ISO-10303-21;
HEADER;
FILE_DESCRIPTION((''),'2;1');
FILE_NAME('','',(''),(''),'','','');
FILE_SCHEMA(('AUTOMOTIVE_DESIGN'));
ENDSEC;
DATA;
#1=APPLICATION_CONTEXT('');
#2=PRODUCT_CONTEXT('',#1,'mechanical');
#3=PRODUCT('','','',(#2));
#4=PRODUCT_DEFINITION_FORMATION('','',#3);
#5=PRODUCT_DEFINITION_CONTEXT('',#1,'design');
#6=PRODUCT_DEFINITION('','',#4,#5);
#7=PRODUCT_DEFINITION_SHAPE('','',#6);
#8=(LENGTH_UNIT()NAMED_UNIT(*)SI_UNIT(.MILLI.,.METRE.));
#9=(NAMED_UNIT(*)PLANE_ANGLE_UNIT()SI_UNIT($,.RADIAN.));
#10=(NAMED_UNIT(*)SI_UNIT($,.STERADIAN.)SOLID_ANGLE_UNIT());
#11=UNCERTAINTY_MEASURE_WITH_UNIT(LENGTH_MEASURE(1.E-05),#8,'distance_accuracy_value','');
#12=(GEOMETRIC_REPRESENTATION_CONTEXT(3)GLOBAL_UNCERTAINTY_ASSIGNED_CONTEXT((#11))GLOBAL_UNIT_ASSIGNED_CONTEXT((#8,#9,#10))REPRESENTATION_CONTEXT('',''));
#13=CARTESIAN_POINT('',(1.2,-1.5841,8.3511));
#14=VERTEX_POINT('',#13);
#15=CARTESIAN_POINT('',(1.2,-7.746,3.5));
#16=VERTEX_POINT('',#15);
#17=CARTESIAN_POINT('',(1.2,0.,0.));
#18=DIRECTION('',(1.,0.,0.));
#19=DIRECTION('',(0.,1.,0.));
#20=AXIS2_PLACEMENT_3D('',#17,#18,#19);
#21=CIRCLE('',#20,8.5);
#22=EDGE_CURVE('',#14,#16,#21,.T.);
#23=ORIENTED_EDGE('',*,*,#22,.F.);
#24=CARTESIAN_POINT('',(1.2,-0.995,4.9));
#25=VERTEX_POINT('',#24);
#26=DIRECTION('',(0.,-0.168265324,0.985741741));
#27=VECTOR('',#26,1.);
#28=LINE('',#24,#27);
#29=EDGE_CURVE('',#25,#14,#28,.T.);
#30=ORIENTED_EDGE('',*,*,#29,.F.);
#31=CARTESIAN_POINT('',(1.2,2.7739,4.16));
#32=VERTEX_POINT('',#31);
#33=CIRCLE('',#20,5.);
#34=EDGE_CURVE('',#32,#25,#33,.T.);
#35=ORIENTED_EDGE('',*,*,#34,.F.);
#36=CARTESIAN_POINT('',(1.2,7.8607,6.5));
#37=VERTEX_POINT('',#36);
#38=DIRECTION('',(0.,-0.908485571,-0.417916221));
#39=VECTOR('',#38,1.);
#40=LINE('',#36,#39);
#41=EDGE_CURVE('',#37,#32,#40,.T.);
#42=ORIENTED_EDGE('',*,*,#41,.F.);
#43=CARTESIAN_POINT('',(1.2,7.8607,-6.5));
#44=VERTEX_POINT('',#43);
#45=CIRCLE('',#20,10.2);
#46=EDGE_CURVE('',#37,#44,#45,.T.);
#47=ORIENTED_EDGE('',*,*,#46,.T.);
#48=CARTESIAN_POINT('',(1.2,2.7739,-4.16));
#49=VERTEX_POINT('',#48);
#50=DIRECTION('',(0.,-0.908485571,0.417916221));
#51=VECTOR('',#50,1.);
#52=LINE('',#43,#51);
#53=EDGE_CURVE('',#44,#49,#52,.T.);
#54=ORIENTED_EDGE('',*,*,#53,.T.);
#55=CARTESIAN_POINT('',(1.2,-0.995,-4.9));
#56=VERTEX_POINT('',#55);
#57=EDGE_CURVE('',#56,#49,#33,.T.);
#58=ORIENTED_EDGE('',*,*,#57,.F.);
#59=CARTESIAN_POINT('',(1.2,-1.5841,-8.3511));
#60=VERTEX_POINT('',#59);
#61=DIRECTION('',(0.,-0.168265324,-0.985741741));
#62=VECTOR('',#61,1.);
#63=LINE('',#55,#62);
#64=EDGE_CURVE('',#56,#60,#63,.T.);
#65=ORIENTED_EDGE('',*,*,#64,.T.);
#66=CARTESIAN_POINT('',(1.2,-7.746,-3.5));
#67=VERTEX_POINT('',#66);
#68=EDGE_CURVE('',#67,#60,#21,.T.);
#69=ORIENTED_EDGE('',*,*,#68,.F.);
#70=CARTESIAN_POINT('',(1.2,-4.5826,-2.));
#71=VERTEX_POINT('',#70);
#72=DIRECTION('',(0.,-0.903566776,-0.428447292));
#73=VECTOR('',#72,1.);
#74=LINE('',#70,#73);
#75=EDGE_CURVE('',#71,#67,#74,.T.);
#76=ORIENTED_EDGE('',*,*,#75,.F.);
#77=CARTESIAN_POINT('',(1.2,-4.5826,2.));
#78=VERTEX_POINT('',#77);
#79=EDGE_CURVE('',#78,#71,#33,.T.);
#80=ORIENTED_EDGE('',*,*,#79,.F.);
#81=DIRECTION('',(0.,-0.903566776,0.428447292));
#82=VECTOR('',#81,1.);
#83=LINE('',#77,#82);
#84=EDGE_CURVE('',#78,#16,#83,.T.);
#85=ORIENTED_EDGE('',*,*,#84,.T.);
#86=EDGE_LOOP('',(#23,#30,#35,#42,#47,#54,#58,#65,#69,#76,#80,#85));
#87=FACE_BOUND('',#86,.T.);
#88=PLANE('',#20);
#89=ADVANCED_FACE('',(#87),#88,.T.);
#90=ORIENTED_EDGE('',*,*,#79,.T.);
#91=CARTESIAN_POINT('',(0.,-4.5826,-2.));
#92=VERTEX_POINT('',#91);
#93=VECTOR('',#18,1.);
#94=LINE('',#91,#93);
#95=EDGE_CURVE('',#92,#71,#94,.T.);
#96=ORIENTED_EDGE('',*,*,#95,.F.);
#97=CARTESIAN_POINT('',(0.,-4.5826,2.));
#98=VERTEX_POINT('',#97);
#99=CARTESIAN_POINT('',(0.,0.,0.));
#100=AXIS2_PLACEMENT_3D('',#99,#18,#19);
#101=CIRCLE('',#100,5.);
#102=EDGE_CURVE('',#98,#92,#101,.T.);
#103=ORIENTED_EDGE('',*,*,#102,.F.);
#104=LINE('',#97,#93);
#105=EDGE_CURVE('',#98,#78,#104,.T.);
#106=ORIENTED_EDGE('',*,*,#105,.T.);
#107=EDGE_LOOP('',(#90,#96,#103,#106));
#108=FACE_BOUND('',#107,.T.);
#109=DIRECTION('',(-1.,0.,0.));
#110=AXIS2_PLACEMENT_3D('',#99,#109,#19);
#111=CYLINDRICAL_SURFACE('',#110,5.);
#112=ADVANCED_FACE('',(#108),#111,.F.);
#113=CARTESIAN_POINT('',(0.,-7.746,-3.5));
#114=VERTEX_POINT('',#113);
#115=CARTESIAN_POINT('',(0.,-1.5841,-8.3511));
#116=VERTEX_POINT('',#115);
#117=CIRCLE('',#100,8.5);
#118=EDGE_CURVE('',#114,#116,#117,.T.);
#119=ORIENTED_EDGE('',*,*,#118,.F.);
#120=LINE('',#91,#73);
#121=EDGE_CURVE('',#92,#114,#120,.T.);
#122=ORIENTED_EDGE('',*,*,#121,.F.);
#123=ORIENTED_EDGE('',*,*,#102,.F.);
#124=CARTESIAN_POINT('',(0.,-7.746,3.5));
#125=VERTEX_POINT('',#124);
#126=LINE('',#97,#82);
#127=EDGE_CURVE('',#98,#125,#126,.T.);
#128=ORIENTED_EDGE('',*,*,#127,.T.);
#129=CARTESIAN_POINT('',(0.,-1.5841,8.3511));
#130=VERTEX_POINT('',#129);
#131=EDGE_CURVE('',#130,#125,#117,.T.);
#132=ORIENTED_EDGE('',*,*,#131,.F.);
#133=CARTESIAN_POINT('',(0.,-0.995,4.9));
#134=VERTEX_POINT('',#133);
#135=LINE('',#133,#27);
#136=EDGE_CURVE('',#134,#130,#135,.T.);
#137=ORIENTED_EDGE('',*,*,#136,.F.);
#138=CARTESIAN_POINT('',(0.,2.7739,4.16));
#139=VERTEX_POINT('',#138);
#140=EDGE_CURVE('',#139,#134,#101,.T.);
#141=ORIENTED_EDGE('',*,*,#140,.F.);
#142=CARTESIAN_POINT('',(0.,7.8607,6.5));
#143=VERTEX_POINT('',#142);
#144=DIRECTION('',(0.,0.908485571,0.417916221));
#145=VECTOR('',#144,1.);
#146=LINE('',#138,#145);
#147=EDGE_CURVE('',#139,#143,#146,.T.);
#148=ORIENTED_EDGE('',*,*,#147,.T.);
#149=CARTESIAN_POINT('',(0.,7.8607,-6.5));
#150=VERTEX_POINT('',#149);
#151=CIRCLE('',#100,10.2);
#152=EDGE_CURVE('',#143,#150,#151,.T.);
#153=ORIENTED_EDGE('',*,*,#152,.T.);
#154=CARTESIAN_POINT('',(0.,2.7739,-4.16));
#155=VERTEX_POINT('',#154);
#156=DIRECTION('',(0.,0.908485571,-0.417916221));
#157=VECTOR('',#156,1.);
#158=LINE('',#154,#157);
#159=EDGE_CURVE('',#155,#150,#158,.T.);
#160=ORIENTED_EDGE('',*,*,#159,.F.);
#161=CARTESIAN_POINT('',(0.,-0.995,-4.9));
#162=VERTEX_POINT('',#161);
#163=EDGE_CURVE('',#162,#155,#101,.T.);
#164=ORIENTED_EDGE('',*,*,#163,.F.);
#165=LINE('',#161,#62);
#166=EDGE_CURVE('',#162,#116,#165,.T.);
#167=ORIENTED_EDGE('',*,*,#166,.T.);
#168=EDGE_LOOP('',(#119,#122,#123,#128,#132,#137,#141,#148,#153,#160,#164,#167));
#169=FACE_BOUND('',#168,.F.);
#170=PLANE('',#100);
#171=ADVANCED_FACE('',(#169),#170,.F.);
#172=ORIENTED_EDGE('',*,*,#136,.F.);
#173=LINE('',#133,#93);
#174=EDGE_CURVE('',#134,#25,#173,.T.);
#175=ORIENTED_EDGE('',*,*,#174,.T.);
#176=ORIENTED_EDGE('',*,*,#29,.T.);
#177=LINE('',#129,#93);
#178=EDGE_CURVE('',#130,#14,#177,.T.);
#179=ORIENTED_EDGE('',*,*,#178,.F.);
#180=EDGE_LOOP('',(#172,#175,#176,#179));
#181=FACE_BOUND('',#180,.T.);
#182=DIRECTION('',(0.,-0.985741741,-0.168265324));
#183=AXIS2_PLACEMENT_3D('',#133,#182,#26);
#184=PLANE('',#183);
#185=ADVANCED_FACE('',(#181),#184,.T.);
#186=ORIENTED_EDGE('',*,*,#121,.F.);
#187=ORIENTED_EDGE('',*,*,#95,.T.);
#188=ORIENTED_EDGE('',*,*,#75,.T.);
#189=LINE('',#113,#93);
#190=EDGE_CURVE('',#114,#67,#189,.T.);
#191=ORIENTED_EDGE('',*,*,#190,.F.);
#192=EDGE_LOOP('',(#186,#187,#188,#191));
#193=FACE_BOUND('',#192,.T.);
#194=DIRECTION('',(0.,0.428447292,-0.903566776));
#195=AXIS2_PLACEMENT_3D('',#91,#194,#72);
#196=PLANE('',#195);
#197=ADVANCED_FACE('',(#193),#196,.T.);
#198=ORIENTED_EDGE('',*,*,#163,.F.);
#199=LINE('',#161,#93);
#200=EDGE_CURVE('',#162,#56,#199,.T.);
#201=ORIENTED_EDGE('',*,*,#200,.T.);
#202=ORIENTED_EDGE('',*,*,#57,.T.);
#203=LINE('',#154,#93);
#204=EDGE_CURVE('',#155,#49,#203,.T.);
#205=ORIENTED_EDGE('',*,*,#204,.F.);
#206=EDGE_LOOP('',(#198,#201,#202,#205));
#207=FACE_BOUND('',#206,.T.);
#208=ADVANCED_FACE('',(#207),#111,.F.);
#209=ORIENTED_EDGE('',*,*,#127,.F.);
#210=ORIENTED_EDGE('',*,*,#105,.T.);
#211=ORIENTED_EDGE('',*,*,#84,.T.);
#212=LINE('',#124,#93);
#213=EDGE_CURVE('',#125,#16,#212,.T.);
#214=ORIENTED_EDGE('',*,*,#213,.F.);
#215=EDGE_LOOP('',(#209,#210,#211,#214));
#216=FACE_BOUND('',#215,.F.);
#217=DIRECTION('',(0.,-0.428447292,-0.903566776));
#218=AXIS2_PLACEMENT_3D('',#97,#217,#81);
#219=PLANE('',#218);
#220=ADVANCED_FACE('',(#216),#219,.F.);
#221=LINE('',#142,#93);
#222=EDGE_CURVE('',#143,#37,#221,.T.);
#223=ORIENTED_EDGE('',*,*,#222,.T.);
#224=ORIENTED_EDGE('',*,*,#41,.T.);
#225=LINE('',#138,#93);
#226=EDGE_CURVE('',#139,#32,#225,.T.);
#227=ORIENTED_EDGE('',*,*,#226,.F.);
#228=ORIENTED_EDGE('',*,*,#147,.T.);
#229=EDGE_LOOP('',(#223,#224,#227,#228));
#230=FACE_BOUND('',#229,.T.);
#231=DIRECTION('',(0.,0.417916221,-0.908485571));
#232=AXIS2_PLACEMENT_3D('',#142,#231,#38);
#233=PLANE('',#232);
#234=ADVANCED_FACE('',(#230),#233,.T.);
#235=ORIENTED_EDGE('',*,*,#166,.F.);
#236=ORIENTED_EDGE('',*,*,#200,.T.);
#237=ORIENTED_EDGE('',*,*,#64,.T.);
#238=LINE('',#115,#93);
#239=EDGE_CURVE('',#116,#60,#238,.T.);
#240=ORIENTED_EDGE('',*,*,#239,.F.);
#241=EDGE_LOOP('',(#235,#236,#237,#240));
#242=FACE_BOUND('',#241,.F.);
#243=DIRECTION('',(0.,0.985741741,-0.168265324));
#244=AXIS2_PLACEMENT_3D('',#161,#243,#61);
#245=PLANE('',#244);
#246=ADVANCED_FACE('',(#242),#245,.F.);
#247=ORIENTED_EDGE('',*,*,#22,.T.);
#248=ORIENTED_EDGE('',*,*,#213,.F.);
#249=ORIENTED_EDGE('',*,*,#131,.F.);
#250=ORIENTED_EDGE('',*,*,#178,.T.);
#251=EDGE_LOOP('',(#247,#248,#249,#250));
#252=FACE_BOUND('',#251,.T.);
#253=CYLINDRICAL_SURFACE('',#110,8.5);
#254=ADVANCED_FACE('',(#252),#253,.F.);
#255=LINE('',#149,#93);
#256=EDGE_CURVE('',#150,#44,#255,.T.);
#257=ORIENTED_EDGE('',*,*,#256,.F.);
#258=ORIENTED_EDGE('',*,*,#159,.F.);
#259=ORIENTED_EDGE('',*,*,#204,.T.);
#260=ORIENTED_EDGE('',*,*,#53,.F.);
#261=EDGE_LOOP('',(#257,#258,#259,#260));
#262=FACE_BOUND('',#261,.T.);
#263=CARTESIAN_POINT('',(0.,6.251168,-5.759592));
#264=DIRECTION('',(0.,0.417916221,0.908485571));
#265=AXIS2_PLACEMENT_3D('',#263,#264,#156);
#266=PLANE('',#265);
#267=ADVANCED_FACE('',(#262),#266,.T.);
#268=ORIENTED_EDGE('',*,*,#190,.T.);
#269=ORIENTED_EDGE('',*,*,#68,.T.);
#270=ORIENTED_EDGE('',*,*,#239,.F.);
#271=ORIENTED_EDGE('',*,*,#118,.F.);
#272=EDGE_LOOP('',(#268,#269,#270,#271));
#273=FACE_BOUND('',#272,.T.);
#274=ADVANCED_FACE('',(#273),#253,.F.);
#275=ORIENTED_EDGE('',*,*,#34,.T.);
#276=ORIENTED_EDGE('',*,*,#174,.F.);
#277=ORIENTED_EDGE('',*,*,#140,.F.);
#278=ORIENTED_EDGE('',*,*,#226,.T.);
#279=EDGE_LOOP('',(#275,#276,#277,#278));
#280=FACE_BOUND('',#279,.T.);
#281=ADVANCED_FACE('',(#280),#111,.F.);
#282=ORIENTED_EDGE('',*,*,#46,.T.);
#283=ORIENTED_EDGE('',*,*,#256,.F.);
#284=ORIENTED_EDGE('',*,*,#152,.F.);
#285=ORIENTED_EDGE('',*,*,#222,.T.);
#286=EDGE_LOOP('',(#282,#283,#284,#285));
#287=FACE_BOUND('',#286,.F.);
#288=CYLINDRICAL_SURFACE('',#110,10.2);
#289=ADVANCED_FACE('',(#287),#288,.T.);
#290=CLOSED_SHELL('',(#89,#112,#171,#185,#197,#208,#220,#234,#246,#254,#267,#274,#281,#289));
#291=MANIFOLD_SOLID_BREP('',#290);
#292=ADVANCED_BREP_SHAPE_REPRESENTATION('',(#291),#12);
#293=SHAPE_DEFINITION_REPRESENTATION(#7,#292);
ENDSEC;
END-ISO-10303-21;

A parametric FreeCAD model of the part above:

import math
import FreeCAD as App
import Part
import Sketcher
from FreeCAD import Vector

doc = App.newDocument("Part")
body = doc.addObject("PartDesign::Body", "Body")

# Sketch on YZ plane
sketch1 = body.newObject("Sketcher::SketchObject", "Sketch")
sketch1.AttachmentSupport = (doc.getObject("YZ_Plane"), [""])
sketch1.MapMode = "FlatFace"
sketch1.addGeometry(Part.ArcOfCircle(Part.Circle(Vector(0, 0, 0), Vector(0, 0, 1), 10.2), math.radians(39.58729), math.radians(320.41271)), False)
sketch1.addGeometry(Part.LineSegment(Vector(7.8607, -6.5, 0), Vector(2.7739, -4.16, 0)), False)
sketch1.addGeometry(Part.ArcOfCircle(Part.Circle(Vector(0, 0, 0), Vector(0, 0, 1), 5), math.radians(-101.478482), math.radians(-56.30453)), False)
sketch1.addGeometry(Part.LineSegment(Vector(-0.995, -4.9, 0), Vector(-1.5841, -8.3511, 0)), False)
sketch1.addGeometry(Part.ArcOfCircle(Part.Circle(Vector(0, 0, 0), Vector(0, 0, 1), 8.5), math.radians(-155.684353), math.radians(-100.74069)), False)
sketch1.addGeometry(Part.LineSegment(Vector(-7.746, -3.5, 0), Vector(-4.5826, -2, 0)), False)
sketch1.addGeometry(Part.ArcOfCircle(Part.Circle(Vector(0, 0, 0), Vector(0, 0, 1), 5), math.radians(156.421933), math.radians(203.578067)), False)
sketch1.addGeometry(Part.LineSegment(Vector(-4.5826, 2, 0), Vector(-7.746, 3.5, 0)), False)
sketch1.addGeometry(Part.ArcOfCircle(Part.Circle(Vector(0, 0, 0), Vector(0, 0, 1), 8.5), math.radians(100.74069), math.radians(155.684353)), False)
sketch1.addGeometry(Part.LineSegment(Vector(-1.5841, 8.3511, 0), Vector(-0.995, 4.9, 0)), False)
sketch1.addGeometry(Part.ArcOfCircle(Part.Circle(Vector(0, 0, 0), Vector(0, 0, 1), 5), math.radians(56.30453), math.radians(101.478482)), False)
sketch1.addGeometry(Part.LineSegment(Vector(2.7739, 4.16, 0), Vector(7.8607, 6.5, 0)), False)
sketch1.addConstraint(Sketcher.Constraint("Coincident", 0, 2, 1, 1))
sketch1.addConstraint(Sketcher.Constraint("Coincident", 1, 2, 2, 2))
sketch1.addConstraint(Sketcher.Constraint("Coincident", 2, 1, 3, 1))
sketch1.addConstraint(Sketcher.Constraint("Coincident", 3, 2, 4, 2))
sketch1.addConstraint(Sketcher.Constraint("Coincident", 4, 1, 5, 1))
sketch1.addConstraint(Sketcher.Constraint("Coincident", 5, 2, 6, 2))
sketch1.addConstraint(Sketcher.Constraint("Coincident", 6, 1, 7, 1))
sketch1.addConstraint(Sketcher.Constraint("Coincident", 7, 2, 8, 2))
sketch1.addConstraint(Sketcher.Constraint("Coincident", 8, 1, 9, 1))
sketch1.addConstraint(Sketcher.Constraint("Coincident", 9, 2, 10, 2))
sketch1.addConstraint(Sketcher.Constraint("Coincident", 10, 1, 11, 1))
sketch1.addConstraint(Sketcher.Constraint("Coincident", 11, 2, 0, 1))
sketch1.addConstraint(Sketcher.Constraint("Coincident", 0, 3, -1, 1))
sketch1.addConstraint(Sketcher.Constraint("Coincident", 2, 3, -1, 1))
sketch1.addConstraint(Sketcher.Constraint("Coincident", 4, 3, -1, 1))
sketch1.addConstraint(Sketcher.Constraint("Coincident", 6, 3, -1, 1))
sketch1.addConstraint(Sketcher.Constraint("Coincident", 8, 3, -1, 1))
sketch1.addConstraint(Sketcher.Constraint("Coincident", 10, 3, -1, 1))
sketch1.addConstraint(Sketcher.Constraint("Equal", 2, 6))
sketch1.addConstraint(Sketcher.Constraint("Equal", 4, 8))
sketch1.addConstraint(Sketcher.Constraint("Equal", 6, 10))
sketch1.addConstraint(Sketcher.Constraint("Vertical", 5, 2, 6, 1))
sketch1.addConstraint(Sketcher.Constraint("Vertical", 4, 1, 7, 2))
sketch1.addConstraint(Sketcher.Constraint("Vertical", 3, 2, 8, 1))
sketch1.addConstraint(Sketcher.Constraint("Vertical", 2, 1, 9, 2))
sketch1.addConstraint(Sketcher.Constraint("Vertical", 1, 2, 10, 1))
sketch1.addConstraint(Sketcher.Constraint("Vertical", 0, 2, 11, 2))
sketch1.addConstraint(Sketcher.Constraint("Equal", 3, 5))
sketch1.addConstraint(Sketcher.Constraint("Radius", 2, 5.0))
sketch1.addConstraint(Sketcher.Constraint("Radius", 0, 10.2))
sketch1.addConstraint(Sketcher.Constraint("Radius", 4, 8.5))
sketch1.addConstraint(Sketcher.Constraint("DistanceY", 5, 2, 6, 1, 4.0))
sketch1.addConstraint(Sketcher.Constraint("DistanceY", 4, 1, 7, 2, 7.0))
sketch1.addConstraint(Sketcher.Constraint("DistanceY", 0, 2, -1, 1, 6.5))
sketch1.addConstraint(Sketcher.Constraint("DistanceY", 2, 1, -1, 1, 4.9))
sketch1.addConstraint(Sketcher.Constraint("DistanceY", 1, 2, -1, 1, 4.16))
pad1 = body.newObject("PartDesign::Pad", "Pad")
pad1.Profile = sketch1
pad1.Length = 1.2

doc.recompute()
